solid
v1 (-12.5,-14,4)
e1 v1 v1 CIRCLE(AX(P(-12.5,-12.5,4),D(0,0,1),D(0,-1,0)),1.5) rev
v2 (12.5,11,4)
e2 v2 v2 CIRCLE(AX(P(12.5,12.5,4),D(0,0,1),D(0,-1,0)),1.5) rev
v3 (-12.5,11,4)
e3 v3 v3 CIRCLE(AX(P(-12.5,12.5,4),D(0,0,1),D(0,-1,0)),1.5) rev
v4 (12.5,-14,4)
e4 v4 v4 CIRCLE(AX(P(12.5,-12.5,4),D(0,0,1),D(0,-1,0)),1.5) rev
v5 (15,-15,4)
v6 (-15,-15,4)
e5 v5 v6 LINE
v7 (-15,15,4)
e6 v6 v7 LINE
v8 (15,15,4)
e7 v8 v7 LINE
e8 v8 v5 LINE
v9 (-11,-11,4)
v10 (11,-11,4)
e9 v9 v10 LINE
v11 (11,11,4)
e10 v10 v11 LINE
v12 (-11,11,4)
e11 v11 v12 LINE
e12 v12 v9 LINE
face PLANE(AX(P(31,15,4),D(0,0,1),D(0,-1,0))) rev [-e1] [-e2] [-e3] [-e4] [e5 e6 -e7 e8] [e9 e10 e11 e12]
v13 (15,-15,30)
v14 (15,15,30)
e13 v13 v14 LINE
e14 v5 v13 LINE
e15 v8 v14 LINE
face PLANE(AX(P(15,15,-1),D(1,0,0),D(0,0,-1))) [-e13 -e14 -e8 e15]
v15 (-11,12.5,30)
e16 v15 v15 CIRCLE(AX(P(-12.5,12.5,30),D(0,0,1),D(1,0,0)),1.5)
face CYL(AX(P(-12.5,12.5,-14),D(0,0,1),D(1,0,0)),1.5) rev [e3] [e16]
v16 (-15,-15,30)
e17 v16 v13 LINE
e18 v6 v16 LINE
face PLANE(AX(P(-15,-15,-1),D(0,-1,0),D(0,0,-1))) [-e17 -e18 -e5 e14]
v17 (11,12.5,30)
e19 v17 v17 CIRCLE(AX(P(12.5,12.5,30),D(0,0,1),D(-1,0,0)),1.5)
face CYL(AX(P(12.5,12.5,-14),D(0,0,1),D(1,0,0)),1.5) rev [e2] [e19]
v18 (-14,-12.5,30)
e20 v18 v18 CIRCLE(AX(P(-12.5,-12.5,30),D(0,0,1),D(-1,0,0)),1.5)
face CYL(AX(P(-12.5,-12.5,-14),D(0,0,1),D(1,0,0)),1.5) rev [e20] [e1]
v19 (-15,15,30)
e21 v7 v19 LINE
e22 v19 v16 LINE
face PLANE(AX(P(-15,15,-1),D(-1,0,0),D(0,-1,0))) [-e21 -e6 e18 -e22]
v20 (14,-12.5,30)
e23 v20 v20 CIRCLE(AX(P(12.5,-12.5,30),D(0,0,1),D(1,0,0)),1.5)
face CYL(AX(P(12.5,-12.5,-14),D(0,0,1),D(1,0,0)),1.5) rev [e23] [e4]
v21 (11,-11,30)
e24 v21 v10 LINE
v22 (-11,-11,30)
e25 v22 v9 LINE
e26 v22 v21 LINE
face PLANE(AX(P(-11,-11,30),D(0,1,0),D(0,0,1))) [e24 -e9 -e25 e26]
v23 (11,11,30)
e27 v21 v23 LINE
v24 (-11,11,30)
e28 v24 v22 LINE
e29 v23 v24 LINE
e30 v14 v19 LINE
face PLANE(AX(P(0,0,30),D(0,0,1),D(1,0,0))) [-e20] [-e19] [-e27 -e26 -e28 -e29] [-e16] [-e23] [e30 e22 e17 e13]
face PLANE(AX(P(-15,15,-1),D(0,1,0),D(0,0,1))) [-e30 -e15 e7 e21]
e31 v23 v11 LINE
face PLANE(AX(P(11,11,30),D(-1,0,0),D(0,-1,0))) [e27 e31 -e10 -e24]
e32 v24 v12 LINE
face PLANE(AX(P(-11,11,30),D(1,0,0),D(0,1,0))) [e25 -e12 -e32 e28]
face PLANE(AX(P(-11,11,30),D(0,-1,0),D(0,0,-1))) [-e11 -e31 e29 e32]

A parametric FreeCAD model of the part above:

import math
import FreeCAD as App
import Part
import Sketcher

doc = App.newDocument("Part")
body = doc.addObject("PartDesign::Body", "Body")

# Sketch on XY plane
sketch1 = body.newObject("Sketcher::SketchObject", "Sketch")
sketch1.AttachmentSupport = (doc.getObject("XY_Plane"), [""])
sketch1.MapMode = "FlatFace"
sketch1.addGeometry(Part.LineSegment(App.Vector(-15, 15, 0), App.Vector(-15, -15, 0)), False)
sketch1.addGeometry(Part.LineSegment(App.Vector(-15, -15, 0), App.Vector(15, -15, 0)), False)
sketch1.addGeometry(Part.LineSegment(App.Vector(15, -15, 0), App.Vector(15, 15, 0)), False)
sketch1.addGeometry(Part.LineSegment(App.Vector(15, 15, 0), App.Vector(-15, 15, 0)), False)
sketch1.addGeometry(Part.Circle(App.Vector(-8, 0, 0), App.Vector(0, 0, 1), 1), False)
sketch1.addGeometry(Part.ArcOfCircle(Part.Circle(App.Vector(-1.8, 0, 0), App.Vector(0, 0, 1), 4.2), math.radians(90), math.radians(270)), False)
sketch1.addGeometry(Part.LineSegment(App.Vector(-1.8, 4.2, 0), App.Vector(1.8, 4.2, 0)), False)
sketch1.addGeometry(Part.ArcOfCircle(Part.Circle(App.Vector(1.8, 0, 0), App.Vector(0, 0, 1), 4.2), math.radians(-90), math.radians(90)), False)
sketch1.addGeometry(Part.LineSegment(App.Vector(1.8, -4.2, 0), App.Vector(-1.8, -4.2, 0)), False)
sketch1.addGeometry(Part.Circle(App.Vector(8, 0, 0), App.Vector(0, 0, 1), 1), False)
sketch1.addConstraint(Sketcher.Constraint("Coincident", 0, 2, 1, 1))
sketch1.addConstraint(Sketcher.Constraint("Coincident", 1, 2, 2, 1))
sketch1.addConstraint(Sketcher.Constraint("Coincident", 2, 2, 3, 1))
sketch1.addConstraint(Sketcher.Constraint("Coincident", 3, 2, 0, 1))
sketch1.addConstraint(Sketcher.Constraint("Tangent", 5, 1, 6, 1))
sketch1.addConstraint(Sketcher.Constraint("Tangent", 6, 2, 7, 2))
sketch1.addConstraint(Sketcher.Constraint("Tangent", 7, 1, 8, 1))
sketch1.addConstraint(Sketcher.Constraint("Tangent", 8, 2, 5, 2))
sketch1.addConstraint(Sketcher.Constraint("Vertical", 0))
sketch1.addConstraint(Sketcher.Constraint("Horizontal", 1))
sketch1.addConstraint(Sketcher.Constraint("Vertical", 2))
sketch1.addConstraint(Sketcher.Constraint("Horizontal", 3))
sketch1.addConstraint(Sketcher.Constraint("Horizontal", 6))
sketch1.addConstraint(Sketcher.Constraint("Horizontal", 8))
sketch1.addConstraint(Sketcher.Constraint("Equal", 4, 9))
sketch1.addConstraint(Sketcher.Constraint("Symmetric", 5, 3, 7, 3, -1, 1))
sketch1.addConstraint(Sketcher.Constraint("Symmetric", 4, 3, 9, 3, -1, 1))
sketch1.addConstraint(Sketcher.Constraint("Symmetric", 0, 2, 2, 2, -1, 1))
sketch1.addConstraint(Sketcher.Constraint("PointOnObject", 4, 3, -1))
sketch1.addConstraint(Sketcher.Constraint("Equal", 3, 0))
sketch1.addConstraint(Sketcher.Constraint("Diameter", 4, 2.0))
sketch1.addConstraint(Sketcher.Constraint("DistanceX", 1, 1, 1, 2, 30.0))
sketch1.addConstraint(Sketcher.Constraint("Radius", 5, 4.25))
sketch1.addConstraint(Sketcher.Constraint("DistanceX", 6, 1, 6, 2, 3.5))
sketch1.addConstraint(Sketcher.Constraint("DistanceX", 4, 3, -1, 1, 8.0))
pad1 = body.newObject("PartDesign::Pad", "Pad")
pad1.Profile = sketch1
pad1.Length = 1
pad1.Reversed = True

# Sketch on XY plane
sketch2 = body.newObject("Sketcher::SketchObject", "Sketch001")
sketch2.AttachmentSupport = (doc.getObject("XY_Plane"), [""])
sketch2.MapMode = "FlatFace"
sketch2.addGeometry(Part.LineSegment(App.Vector(-15, 15, 0), App.Vector(-15, -15, 0)), False)
sketch2.addGeometry(Part.LineSegment(App.Vector(-15, -15, 0), App.Vector(15, -15, 0)), False)
sketch2.addGeometry(Part.LineSegment(App.Vector(15, -15, 0), App.Vector(15, 15, 0)), False)
sketch2.addGeometry(Part.LineSegment(App.Vector(15, 15, 0), App.Vector(-15, 15, 0)), False)
sketch2.addGeometry(Part.LineSegment(App.Vector(11, -11, 0), App.Vector(-11, -11, 0)), False)
sketch2.addGeometry(Part.LineSegment(App.Vector(-11, -11, 0), App.Vector(-11, 11, 0)), False)
sketch2.addGeometry(Part.LineSegment(App.Vector(-11, 11, 0), App.Vector(11, 11, 0)), False)
sketch2.addGeometry(Part.LineSegment(App.Vector(11, 11, 0), App.Vector(11, -11, 0)), False)
sketch2.addConstraint(Sketcher.Constraint("Coincident", 0, 2, 1, 1))
sketch2.addConstraint(Sketcher.Constraint("Coincident", 1, 2, 2, 1))
sketch2.addConstraint(Sketcher.Constraint("Coincident", 2, 2, 3, 1))
sketch2.addConstraint(Sketcher.Constraint("Coincident", 3, 2, 0, 1))
sketch2.addConstraint(Sketcher.Constraint("Coincident", 4, 2, 5, 1))
sketch2.addConstraint(Sketcher.Constraint("Coincident", 5, 2, 6, 1))
sketch2.addConstraint(Sketcher.Constraint("Coincident", 6, 2, 7, 1))
sketch2.addConstraint(Sketcher.Constraint("Coincident", 7, 2, 4, 1))
sketch2.addConstraint(Sketcher.Constraint("Vertical", 0))
sketch2.addConstraint(Sketcher.Constraint("Horizontal", 1))
sketch2.addConstraint(Sketcher.Constraint("Vertical", 2))
sketch2.addConstraint(Sketcher.Constraint("Horizontal", 3))
sketch2.addConstraint(Sketcher.Constraint("Horizontal", 4))
sketch2.addConstraint(Sketcher.Constraint("Vertical", 5))
sketch2.addConstraint(Sketcher.Constraint("Horizontal", 6))
sketch2.addConstraint(Sketcher.Constraint("Vertical", 7))
sketch2.addConstraint(Sketcher.Constraint("Symmetric", 0, 2, 2, 2, -1, 1))
sketch2.addConstraint(Sketcher.Constraint("Symmetric", 4, 2, 6, 2, -1, 1))
sketch2.addConstraint(Sketcher.Constraint("Equal", 3, 0))
sketch2.addConstraint(Sketcher.Constraint("Equal", 6, 5))
sketch2.addConstraint(Sketcher.Constraint("DistanceX", 1, 1, 1, 2, 30.0))
sketch2.addConstraint(Sketcher.Constraint("DistanceX", 4, 2, 4, 1, 22.0))
pad2 = body.newObject("PartDesign::Pad", "Pad001")
pad2.Profile = sketch2
pad2.Length = 30

# Sketch on XY plane
sketch3 = body.newObject("Sketcher::SketchObject", "Sketch002")
sketch3.AttachmentSupport = (doc.getObject("XY_Plane"), [""])
sketch3.MapMode = "FlatFace"
sketch3.AttachmentOffset = App.Placement(App.Vector(0, 0, 30), App.Rotation())
sketch3.addGeometry(Part.Circle(App.Vector(-12.5, 12.5, 0), App.Vector(0, 0, 1), 1.5), False)
sketch3.addGeometry(Part.Circle(App.Vector(12.5, 12.5, 0), App.Vector(0, 0, 1), 1.5), False)
sketch3.addGeometry(Part.Circle(App.Vector(12.5, -12.5, 0), App.Vector(0, 0, 1), 1.5), False)
sketch3.addGeometry(Part.Circle(App.Vector(-12.5, -12.5, 0), App.Vector(0, 0, 1), 1.5), False)
sketch3.addConstraint(Sketcher.Constraint("Equal", 0, 1))
sketch3.addConstraint(Sketcher.Constraint("Equal", 1, 2))
sketch3.addConstraint(Sketcher.Constraint("Equal", 2, 3))
sketch3.addConstraint(Sketcher.Constraint("Symmetric", 0, 3, 2, 3, -1, 1))
sketch3.addConstraint(Sketcher.Constraint("Symmetric", 1, 3, 3, 3, -1, 1))
sketch3.addConstraint(Sketcher.Constraint("Symmetric", 0, 3, 1, 3, -2))
sketch3.addConstraint(Sketcher.Constraint("Diameter", 0, 3.0))
sketch3.addConstraint(Sketcher.Constraint("DistanceX", 0, 3, 1, 3, 25.0))
sketch3.addConstraint(Sketcher.Constraint("DistanceY", 2, 3, 1, 3, 25.0))
pocket1 = body.newObject("PartDesign::Pocket", "Pocket")
pocket1.Profile = sketch3
pocket1.Length = 44

# Sketch on YZ plane
sketch4 = body.newObject("Sketcher::SketchObject", "Sketch003")
sketch4.AttachmentSupport = (doc.getObject("YZ_Plane"), [""])
sketch4.MapMode = "FlatFace"
sketch4.AttachmentOffset = App.Placement(App.Vector(0, 0, -15), App.Rotation())
sketch4.addGeometry(Part.LineSegment(App.Vector(15, -1, 0), App.Vector(-15, -1, 0)), False)
sketch4.addGeometry(Part.LineSegment(App.Vector(-15, -1, 0), App.Vector(-15, 4, 0)), False)
sketch4.addGeometry(Part.LineSegment(App.Vector(-15, 4, 0), App.Vector(15, 4, 0)), False)
sketch4.addGeometry(Part.LineSegment(App.Vector(15, 4, 0), App.Vector(15, -1, 0)), False)
sketch4.addConstraint(Sketcher.Constraint("Coincident", 0, 2, 1, 1))
sketch4.addConstraint(Sketcher.Constraint("Coincident", 1, 2, 2, 1))
sketch4.addConstraint(Sketcher.Constraint("Coincident", 2, 2, 3, 1))
sketch4.addConstraint(Sketcher.Constraint("Coincident", 3, 2, 0, 1))
sketch4.addConstraint(Sketcher.Constraint("Horizontal", 0))
sketch4.addConstraint(Sketcher.Constraint("Vertical", 1))
sketch4.addConstraint(Sketcher.Constraint("Horizontal", 2))
sketch4.addConstraint(Sketcher.Constraint("Vertical", 3))
sketch4.addConstraint(Sketcher.Constraint("DistanceX", 0, 2, 0, 1, 30.0))
sketch4.addConstraint(Sketcher.Constraint("DistanceY", 1, 1, 1, 2, 5.0))
sketch4.addConstraint(Sketcher.Constraint("DistanceX", 0, 2, -1, 1, 15.0))
sketch4.addConstraint(Sketcher.Constraint("DistanceY", 0, 2, -1, 1, 1.0))
pocket2 = body.newObject("PartDesign::Pocket", "Pocket001")
pocket2.Profile = sketch4
pocket2.Length = 46
pocket2.Reversed = True

doc.recompute()
